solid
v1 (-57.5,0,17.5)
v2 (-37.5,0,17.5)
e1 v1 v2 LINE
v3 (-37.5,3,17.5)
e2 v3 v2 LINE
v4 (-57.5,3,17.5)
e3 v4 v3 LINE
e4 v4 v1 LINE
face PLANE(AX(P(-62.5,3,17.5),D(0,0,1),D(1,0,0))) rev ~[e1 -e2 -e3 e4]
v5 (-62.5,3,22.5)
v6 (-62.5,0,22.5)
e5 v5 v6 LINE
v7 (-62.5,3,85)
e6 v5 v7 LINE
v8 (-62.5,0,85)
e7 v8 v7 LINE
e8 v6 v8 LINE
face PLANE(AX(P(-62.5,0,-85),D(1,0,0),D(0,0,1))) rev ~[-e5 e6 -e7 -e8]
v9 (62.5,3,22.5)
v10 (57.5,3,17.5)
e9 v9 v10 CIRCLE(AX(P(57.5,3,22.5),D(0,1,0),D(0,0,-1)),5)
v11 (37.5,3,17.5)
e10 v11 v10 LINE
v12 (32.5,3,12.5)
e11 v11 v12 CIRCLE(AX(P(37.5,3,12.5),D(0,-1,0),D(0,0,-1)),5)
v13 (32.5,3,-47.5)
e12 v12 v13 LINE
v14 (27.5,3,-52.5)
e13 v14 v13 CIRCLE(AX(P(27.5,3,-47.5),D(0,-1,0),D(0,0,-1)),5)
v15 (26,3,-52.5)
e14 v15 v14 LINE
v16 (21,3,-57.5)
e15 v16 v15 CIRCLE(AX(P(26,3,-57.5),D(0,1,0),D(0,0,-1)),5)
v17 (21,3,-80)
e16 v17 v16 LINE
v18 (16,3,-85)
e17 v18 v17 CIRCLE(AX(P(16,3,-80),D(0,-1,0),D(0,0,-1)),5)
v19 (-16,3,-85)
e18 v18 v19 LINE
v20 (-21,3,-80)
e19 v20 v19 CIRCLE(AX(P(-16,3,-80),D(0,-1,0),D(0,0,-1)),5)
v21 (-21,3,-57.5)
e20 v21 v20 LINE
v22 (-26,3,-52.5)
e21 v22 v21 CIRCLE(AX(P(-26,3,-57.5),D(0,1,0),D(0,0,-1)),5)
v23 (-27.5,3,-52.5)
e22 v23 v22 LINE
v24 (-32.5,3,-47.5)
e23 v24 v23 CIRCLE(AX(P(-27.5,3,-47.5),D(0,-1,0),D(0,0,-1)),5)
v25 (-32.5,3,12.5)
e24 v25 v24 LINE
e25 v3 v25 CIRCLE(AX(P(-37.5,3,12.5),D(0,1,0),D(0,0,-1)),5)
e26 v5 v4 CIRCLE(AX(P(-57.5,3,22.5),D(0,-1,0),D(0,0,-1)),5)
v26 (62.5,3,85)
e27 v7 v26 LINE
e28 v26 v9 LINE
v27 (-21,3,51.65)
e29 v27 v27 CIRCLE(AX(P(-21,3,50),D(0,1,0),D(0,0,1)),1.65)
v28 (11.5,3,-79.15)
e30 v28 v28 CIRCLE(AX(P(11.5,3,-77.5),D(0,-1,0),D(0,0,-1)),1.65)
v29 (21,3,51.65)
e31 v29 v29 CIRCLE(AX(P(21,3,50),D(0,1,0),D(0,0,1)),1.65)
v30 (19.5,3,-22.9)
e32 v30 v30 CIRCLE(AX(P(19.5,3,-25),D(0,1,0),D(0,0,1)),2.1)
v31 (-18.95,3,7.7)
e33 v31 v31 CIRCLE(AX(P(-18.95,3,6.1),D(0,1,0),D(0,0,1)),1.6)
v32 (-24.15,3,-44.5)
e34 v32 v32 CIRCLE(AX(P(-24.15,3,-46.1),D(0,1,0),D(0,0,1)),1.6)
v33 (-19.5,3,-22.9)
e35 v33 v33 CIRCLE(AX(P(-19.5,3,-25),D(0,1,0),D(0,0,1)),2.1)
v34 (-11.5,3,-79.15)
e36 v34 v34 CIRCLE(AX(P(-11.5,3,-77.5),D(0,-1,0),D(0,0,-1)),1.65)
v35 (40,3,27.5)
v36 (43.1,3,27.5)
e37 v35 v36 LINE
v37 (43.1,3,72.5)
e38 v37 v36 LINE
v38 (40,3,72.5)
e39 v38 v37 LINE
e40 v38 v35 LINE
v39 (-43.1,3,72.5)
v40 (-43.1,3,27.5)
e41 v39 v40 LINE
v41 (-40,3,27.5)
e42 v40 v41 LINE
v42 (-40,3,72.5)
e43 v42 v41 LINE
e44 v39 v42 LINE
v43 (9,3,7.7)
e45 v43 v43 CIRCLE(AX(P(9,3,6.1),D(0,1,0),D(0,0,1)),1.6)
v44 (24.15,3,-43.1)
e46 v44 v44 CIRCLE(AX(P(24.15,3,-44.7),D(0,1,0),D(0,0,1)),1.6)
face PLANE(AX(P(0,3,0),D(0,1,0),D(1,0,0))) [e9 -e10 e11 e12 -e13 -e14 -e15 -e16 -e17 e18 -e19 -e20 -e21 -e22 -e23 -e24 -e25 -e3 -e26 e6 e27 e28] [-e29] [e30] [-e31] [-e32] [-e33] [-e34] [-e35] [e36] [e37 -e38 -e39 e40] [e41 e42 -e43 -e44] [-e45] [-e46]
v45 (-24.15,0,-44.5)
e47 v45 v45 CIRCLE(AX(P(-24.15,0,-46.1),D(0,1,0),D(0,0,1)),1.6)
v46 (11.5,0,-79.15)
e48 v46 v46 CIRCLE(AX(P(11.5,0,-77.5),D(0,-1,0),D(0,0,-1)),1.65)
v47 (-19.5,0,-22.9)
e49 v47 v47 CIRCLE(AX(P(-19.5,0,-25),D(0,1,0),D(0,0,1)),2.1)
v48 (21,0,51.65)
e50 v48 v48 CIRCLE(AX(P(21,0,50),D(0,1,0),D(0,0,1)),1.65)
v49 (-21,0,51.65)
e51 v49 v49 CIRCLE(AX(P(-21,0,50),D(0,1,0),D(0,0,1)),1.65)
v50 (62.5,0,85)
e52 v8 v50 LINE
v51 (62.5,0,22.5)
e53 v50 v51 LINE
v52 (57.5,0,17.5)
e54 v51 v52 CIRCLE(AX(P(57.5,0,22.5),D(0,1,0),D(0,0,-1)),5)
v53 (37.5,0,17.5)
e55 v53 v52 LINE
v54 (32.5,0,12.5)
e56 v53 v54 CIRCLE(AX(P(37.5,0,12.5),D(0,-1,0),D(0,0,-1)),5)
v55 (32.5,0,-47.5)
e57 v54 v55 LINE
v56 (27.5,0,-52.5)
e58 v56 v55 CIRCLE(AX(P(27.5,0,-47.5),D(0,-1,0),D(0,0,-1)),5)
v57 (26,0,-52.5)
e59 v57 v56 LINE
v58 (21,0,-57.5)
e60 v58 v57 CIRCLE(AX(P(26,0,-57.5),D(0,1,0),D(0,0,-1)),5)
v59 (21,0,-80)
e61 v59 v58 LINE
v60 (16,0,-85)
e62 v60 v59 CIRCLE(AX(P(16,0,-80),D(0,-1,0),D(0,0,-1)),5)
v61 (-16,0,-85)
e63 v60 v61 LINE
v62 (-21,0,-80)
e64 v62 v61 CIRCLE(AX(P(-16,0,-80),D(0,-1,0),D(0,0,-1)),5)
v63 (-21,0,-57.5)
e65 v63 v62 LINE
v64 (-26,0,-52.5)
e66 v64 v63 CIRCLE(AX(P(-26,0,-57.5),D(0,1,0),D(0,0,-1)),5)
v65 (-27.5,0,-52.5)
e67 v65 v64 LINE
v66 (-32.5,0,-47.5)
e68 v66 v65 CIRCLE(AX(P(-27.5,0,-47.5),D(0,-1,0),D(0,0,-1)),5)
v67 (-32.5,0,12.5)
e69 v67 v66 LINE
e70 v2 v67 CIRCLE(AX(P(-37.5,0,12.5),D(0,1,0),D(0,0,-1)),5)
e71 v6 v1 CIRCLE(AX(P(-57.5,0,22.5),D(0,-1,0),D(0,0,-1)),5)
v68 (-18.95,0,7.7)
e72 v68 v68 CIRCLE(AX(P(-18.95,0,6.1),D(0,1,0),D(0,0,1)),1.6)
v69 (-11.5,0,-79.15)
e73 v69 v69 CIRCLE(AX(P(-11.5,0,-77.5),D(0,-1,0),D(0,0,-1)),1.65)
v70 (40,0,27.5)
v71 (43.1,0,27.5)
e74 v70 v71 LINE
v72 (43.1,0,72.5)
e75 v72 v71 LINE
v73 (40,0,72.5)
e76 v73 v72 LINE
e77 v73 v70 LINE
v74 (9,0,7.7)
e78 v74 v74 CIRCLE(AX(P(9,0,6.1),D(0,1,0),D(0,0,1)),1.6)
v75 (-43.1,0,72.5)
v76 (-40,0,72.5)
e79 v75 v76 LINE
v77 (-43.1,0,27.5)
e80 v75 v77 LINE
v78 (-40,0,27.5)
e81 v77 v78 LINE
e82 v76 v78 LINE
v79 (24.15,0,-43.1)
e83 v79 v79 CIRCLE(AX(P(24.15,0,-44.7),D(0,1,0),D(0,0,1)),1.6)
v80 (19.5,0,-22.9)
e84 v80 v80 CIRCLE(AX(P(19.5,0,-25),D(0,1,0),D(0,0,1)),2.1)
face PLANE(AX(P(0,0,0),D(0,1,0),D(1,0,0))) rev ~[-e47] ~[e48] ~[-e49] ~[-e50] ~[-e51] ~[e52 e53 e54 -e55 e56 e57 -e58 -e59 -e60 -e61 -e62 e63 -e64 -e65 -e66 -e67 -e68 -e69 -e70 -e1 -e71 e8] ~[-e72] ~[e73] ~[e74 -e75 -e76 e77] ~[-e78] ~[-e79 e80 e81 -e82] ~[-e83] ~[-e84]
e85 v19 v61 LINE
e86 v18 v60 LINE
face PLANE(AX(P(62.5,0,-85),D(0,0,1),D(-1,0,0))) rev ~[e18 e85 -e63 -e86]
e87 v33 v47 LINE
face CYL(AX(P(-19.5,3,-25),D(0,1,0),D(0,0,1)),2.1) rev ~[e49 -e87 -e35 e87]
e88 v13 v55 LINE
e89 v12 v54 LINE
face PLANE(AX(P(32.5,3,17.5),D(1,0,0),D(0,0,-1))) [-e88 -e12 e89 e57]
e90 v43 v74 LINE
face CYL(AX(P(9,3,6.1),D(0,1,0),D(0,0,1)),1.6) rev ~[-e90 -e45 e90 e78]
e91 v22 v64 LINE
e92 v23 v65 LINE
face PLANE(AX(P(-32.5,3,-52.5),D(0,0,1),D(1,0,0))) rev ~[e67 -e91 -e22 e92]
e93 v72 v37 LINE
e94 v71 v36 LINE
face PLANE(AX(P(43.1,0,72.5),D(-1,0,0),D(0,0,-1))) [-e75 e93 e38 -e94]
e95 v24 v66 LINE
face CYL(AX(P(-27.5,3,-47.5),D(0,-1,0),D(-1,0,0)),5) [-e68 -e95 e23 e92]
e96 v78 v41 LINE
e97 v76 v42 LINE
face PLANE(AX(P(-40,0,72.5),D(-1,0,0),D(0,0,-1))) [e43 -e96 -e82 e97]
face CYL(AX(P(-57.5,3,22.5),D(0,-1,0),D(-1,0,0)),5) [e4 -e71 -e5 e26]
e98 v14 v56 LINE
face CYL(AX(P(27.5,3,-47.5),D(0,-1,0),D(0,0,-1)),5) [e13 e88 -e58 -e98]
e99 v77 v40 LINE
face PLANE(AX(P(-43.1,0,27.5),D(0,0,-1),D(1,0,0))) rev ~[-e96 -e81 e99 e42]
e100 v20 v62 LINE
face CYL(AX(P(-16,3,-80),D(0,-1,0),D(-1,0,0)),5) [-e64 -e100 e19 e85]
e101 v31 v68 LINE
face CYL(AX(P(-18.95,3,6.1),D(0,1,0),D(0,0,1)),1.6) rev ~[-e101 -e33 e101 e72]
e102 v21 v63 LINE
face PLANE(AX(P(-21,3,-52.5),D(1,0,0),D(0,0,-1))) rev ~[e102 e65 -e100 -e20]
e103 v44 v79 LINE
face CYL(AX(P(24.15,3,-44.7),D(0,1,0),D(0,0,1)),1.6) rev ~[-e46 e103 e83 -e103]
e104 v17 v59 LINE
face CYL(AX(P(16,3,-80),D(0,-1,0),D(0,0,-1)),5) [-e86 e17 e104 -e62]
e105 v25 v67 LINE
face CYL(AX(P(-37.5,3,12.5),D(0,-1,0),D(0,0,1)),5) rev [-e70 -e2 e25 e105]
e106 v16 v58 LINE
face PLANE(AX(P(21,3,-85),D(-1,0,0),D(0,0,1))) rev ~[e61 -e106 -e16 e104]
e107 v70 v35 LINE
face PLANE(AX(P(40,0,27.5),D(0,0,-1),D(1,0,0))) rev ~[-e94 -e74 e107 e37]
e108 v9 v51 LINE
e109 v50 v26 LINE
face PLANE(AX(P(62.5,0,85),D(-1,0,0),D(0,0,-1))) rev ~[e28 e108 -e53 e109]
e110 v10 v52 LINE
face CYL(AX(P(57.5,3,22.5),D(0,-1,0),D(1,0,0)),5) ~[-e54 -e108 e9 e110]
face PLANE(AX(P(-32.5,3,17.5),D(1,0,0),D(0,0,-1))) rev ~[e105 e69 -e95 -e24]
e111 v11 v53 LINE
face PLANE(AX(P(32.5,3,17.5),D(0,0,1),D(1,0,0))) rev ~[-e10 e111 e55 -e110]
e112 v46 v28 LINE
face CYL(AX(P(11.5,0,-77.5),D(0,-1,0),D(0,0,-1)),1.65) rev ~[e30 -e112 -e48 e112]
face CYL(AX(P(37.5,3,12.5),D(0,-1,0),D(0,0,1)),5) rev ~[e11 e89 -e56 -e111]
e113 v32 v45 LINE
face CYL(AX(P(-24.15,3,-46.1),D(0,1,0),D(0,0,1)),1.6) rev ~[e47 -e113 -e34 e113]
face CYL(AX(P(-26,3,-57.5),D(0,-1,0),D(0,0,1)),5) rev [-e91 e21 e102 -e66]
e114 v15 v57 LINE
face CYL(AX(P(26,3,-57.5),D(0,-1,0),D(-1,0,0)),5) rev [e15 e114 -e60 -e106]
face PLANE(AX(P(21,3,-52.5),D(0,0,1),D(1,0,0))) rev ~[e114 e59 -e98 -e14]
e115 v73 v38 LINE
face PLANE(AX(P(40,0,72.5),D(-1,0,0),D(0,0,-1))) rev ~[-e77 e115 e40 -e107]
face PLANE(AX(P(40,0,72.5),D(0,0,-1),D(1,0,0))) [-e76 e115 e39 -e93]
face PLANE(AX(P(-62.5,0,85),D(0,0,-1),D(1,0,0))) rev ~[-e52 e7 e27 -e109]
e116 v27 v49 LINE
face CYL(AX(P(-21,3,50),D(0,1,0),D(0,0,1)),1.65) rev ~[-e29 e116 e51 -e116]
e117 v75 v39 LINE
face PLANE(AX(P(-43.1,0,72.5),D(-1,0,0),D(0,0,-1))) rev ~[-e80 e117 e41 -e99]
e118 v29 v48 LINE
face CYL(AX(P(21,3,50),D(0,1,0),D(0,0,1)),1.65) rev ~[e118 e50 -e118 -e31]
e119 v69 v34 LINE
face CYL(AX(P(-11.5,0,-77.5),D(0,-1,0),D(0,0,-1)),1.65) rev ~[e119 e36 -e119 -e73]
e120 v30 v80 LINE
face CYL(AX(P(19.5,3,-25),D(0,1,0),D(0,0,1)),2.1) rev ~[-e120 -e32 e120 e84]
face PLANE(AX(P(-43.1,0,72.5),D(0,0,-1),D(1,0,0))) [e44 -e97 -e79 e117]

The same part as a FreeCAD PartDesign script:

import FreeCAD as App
import Part
import Sketcher

V = App.Vector


def edges_at(feature, points):
    """Names of the edges that pass closest to the given points."""
    edges = feature.Shape.Edges
    near = lambda p: min(range(len(edges)), key=lambda i: edges[i].distToShape(Part.Vertex(*p))[0])
    return sorted({f"Edge{near(p) + 1}" for p in points})


def add_polygon(sketch, points):
    """Adds a closed chain of lines whose ends are joined by coincident constraints."""
    first, n = sketch.GeometryCount, len(points)
    for a, b in zip(points, points[1:] + points[:1]):
        sketch.addGeometry(Part.LineSegment(App.Vector(*a, 0), App.Vector(*b, 0)), False)
    for i in range(n):
        sketch.addConstraint(Sketcher.Constraint("Coincident", first + i, 2, first + (i + 1) % n, 1))

doc = App.newDocument("Part")
body = doc.addObject("PartDesign::Body", "Body")

# Sketch on XZ plane
sketch1 = body.newObject("Sketcher::SketchObject", "Sketch")
sketch1.AttachmentSupport = (doc.getObject("XZ_Plane"), [""])
sketch1.MapMode = "FlatFace"
add_polygon(sketch1, [(-62.5, 85), (62.5, 85), (62.5, -85), (-62.5, -85)])  # lines 0-3
add_polygon(sketch1, [(-40, 72.5), (-43.1, 72.5), (-43.1, 27.5), (-40, 27.5)])  # lines 4-7
add_polygon(sketch1, [(43.1, 72.5), (40, 72.5), (40, 27.5), (43.1, 27.5)])  # lines 8-11
sketch1.addConstraint([
    Sketcher.Constraint("Horizontal", 0),
    Sketcher.Constraint("Vertical", 1),
    Sketcher.Constraint("Horizontal", 2),
    Sketcher.Constraint("Vertical", 3),
    Sketcher.Constraint("Horizontal", 4),
    Sketcher.Constraint("Vertical", 5),
    Sketcher.Constraint("Horizontal", 6),
    Sketcher.Constraint("Vertical", 7),
    Sketcher.Constraint("Horizontal", 8),
    Sketcher.Constraint("Vertical", 9),
    Sketcher.Constraint("Horizontal", 10),
    Sketcher.Constraint("Vertical", 11),
    Sketcher.Constraint("Symmetric", 0, 2, 2, 2, -1, 1),
    Sketcher.Constraint("Symmetric", 7, 2, 8, 2, -2),
    Sketcher.Constraint("Symmetric", 5, 2, 10, 2, -2),
    Sketcher.Constraint("DistanceX", 0, 1, 0, 2, 125.0),
    Sketcher.Constraint("DistanceY", 1, 2, 1, 1, 170.0),
    Sketcher.Constraint("DistanceY", 5, 2, 5, 1, 45.0),
    Sketcher.Constraint("DistanceX", 4, 2, 4, 1, 3.1),
    Sketcher.Constraint("DistanceX", 6, 2, -1, 1, 40.0),
    Sketcher.Constraint("DistanceY", -1, 1, 4, 2, 72.5),
])
pad1 = body.newObject("PartDesign::Pad", "Pad")
pad1.Profile = sketch1
pad1.Length = 3
pad1.Reversed = True

# Sketch on XZ plane
sketch2 = body.newObject("Sketcher::SketchObject", "Sketch001")
sketch2.AttachmentSupport = (doc.getObject("XZ_Plane"), [""])
sketch2.MapMode = "FlatFace"
sketch2.AttachmentOffset = App.Placement(V(0, 0, -3), App.Rotation())
sketch2.addGeometry([
    Part.Circle(V(-24.1, -46.1, 0), V(0, 0, 1), 1.6),
    Part.Circle(V(24.1, -44.7, 0), V(0, 0, 1), 1.6),
    Part.Circle(V(-18.9, 6.1, 0), V(0, 0, 1), 1.6),
    Part.Circle(V(9, 6.1, 0), V(0, 0, 1), 1.6),
], False)
sketch2.addConstraint([
    Sketcher.Constraint("Equal", 0, 1),
    Sketcher.Constraint("Equal", 1, 2),
    Sketcher.Constraint("Equal", 2, 3),
    Sketcher.Constraint("Horizontal", 2, 3, 3, 3),
    Sketcher.Constraint("Diameter", 0, 3.2),
    Sketcher.Constraint("DistanceX", -1, 1, 3, 3, 9.0),
    Sketcher.Constraint("DistanceY", 0, 3, -1, 1, 46.1),
    Sketcher.Constraint("DistanceY", 1, 3, -1, 1, 44.7),
    Sketcher.Constraint("DistanceY", -1, 1, 2, 3, 6.1),
    Sketcher.Constraint("DistanceX", 0, 3, 1, 3, 48.3),
    Sketcher.Constraint("DistanceX", 0, 3, 2, 3, 5.2),
    Sketcher.Constraint("DistanceX", 0, 3, -1, 1, 24.15),
])
pocket1 = body.newObject("PartDesign::Pocket", "Pocket")
pocket1.Profile = sketch2
pocket1.Length = 10
pocket1.Reversed = True

# Sketch on XZ plane
sketch3 = body.newObject("Sketcher::SketchObject", "Sketch002")
sketch3.AttachmentSupport = (doc.getObject("XZ_Plane"), [""])
sketch3.MapMode = "FlatFace"
sketch3.addGeometry(Part.Circle(V(11.5, -77.5, 0), V(0, 0, 1), 1.6), False)
sketch3.addConstraint([
    Sketcher.Constraint("Diameter", 0, 3.3),
    Sketcher.Constraint("DistanceX", -1, 1, 0, 3, 11.5),
    Sketcher.Constraint("DistanceY", 0, 3, -1, 1, 77.5),
])
pocket2 = body.newObject("PartDesign::Pocket", "Pocket001")
pocket2.Profile = sketch3
pocket2.Type = "UpToFirst"

# Sketch on XZ plane
sketch4 = body.newObject("Sketcher::SketchObject", "Sketch003")
sketch4.AttachmentSupport = (doc.getObject("XZ_Plane"), [""])
sketch4.MapMode = "FlatFace"
sketch4.addGeometry(Part.Circle(V(-11.5, -77.5, 0), V(0, 0, 1), 1.6), False)
sketch4.addConstraint([
    Sketcher.Constraint("Diameter", 0, 3.3),
    Sketcher.Constraint("DistanceX", 0, 3, -1, 1, 11.5),
    Sketcher.Constraint("DistanceY", 0, 3, -1, 1, 77.5),
])
pocket3 = body.newObject("PartDesign::Pocket", "Pocket002")
pocket3.Profile = sketch4
pocket3.Type = "UpToFirst"

# Sketch on XZ plane
sketch5 = body.newObject("Sketcher::SketchObject", "Sketch004")
sketch5.AttachmentSupport = (doc.getObject("XZ_Plane"), [""])
sketch5.MapMode = "FlatFace"
sketch5.AttachmentOffset = App.Placement(V(0, 0, -3), App.Rotation())
sketch5.addGeometry([
    Part.Circle(V(21, 50, 0), V(0, 0, 1), 1.6),
    Part.Circle(V(-21, 50, 0), V(0, 0, 1), 1.6),
], False)
sketch5.addConstraint([
    Sketcher.Constraint("Equal", 0, 1),
    Sketcher.Constraint("Symmetric", 0, 3, 1, 3, -2),
    Sketcher.Constraint("Diameter", 0, 3.3),
    Sketcher.Constraint("DistanceX", -1, 1, 0, 3, 21.0),
    Sketcher.Constraint("DistanceY", -1, 1, 0, 3, 50.0),
])
pocket4 = body.newObject("PartDesign::Pocket", "Pocket003")
pocket4.Profile = sketch5
pocket4.Length = 10
pocket4.Reversed = True

# Sketch on XZ plane
sketch6 = body.newObject("Sketcher::SketchObject", "Sketch005")
sketch6.AttachmentSupport = (doc.getObject("XZ_Plane"), [""])
sketch6.MapMode = "FlatFace"
sketch6.AttachmentOffset = App.Placement(V(0, 0, -3), App.Rotation())
add_polygon(sketch6, [(-62, 18), (-32, 18), (-32, -52), (-21, -52), (-21, -85), (-62, -85)])  # lines 0-5
add_polygon(sketch6, [(62, -85), (21, -85), (21, -52), (32, -52), (32, 18), (62, 18)])  # lines 6-11
sketch6.addConstraint([
    Sketcher.Constraint("Horizontal", 0),
    Sketcher.Constraint("Vertical", 1),
    Sketcher.Constraint("Horizontal", 2),
    Sketcher.Constraint("Vertical", 3),
    Sketcher.Constraint("Horizontal", 4),
    Sketcher.Constraint("Vertical", 5),
    Sketcher.Constraint("Horizontal", 6),
    Sketcher.Constraint("Vertical", 7),
    Sketcher.Constraint("Horizontal", 8),
    Sketcher.Constraint("Vertical", 9),
    Sketcher.Constraint("Horizontal", 10),
    Sketcher.Constraint("Vertical", 11),
    Sketcher.Constraint("Symmetric", 3, 2, 6, 2, -2),
    Sketcher.Constraint("Symmetric", 1, 2, 8, 2, -2),
    Sketcher.Constraint("Symmetric", 5, 2, 10, 2, -2),
    Sketcher.Constraint("DistanceX", 0, 1, 0, 2, 30.0),
    Sketcher.Constraint("DistanceY", 1, 2, 1, 1, 70.0),
    Sketcher.Constraint("DistanceX", 2, 1, 2, 2, 11.5),
    Sketcher.Constraint("DistanceY", 3, 2, 3, 1, 32.5),
    Sketcher.Constraint("DistanceX", 2, 2, -1, 1, 21.0),
    Sketcher.Constraint("DistanceY", 3, 2, -1, 1, 85.0),
])
pocket5 = body.newObject("PartDesign::Pocket", "Pocket004")
pocket5.Profile = sketch6
pocket5.Length = 10
pocket5.Reversed = True
doc.recompute()

fillet = body.newObject("PartDesign::Fillet", "Fillet")
fillet.Base = (pocket5, edges_at(pocket5, [
    (21, 1.5, -52.5),
    (21, 1.5, -85),
    (62.5, 1.5, 17.5),
    (32.5, 1.5, 17.5),
    (32.5, 1.5, -52.5),
    (-32.5, 1.5, -52.5),
    (-32.5, 1.5, 17.5),
    (-62.5, 1.5, 17.5),
    (-21, 1.5, -85),
    (-21, 1.5, -52.5),
]))
fillet.Radius = 5

# Sketch on XZ plane
sketch7 = body.newObject("Sketcher::SketchObject", "Sketch006")
sketch7.AttachmentSupport = (doc.getObject("XZ_Plane"), [""])
sketch7.MapMode = "FlatFace"
sketch7.AttachmentOffset = App.Placement(V(0, 0, -3), App.Rotation())
sketch7.addGeometry([
    Part.Circle(V(19.5, -25, 0), V(0, 0, 1), 2.1),
    Part.Circle(V(-19.5, -25, 0), V(0, 0, 1), 2.1),
], False)
sketch7.addConstraint([
    Sketcher.Constraint("Equal", 0, 1),
    Sketcher.Constraint("Symmetric", 0, 3, 1, 3, -2),
    Sketcher.Constraint("Diameter", 0, 4.2),
    Sketcher.Constraint("DistanceY", 0, 3, -1, 1, 25.0),
    Sketcher.Constraint("DistanceX", 1, 3, 0, 3, 39.0),
])
pocket6 = body.newObject("PartDesign::Pocket", "Pocket005")
pocket6.Profile = sketch7
pocket6.Length = 10
pocket6.Reversed = True

doc.recompute()
